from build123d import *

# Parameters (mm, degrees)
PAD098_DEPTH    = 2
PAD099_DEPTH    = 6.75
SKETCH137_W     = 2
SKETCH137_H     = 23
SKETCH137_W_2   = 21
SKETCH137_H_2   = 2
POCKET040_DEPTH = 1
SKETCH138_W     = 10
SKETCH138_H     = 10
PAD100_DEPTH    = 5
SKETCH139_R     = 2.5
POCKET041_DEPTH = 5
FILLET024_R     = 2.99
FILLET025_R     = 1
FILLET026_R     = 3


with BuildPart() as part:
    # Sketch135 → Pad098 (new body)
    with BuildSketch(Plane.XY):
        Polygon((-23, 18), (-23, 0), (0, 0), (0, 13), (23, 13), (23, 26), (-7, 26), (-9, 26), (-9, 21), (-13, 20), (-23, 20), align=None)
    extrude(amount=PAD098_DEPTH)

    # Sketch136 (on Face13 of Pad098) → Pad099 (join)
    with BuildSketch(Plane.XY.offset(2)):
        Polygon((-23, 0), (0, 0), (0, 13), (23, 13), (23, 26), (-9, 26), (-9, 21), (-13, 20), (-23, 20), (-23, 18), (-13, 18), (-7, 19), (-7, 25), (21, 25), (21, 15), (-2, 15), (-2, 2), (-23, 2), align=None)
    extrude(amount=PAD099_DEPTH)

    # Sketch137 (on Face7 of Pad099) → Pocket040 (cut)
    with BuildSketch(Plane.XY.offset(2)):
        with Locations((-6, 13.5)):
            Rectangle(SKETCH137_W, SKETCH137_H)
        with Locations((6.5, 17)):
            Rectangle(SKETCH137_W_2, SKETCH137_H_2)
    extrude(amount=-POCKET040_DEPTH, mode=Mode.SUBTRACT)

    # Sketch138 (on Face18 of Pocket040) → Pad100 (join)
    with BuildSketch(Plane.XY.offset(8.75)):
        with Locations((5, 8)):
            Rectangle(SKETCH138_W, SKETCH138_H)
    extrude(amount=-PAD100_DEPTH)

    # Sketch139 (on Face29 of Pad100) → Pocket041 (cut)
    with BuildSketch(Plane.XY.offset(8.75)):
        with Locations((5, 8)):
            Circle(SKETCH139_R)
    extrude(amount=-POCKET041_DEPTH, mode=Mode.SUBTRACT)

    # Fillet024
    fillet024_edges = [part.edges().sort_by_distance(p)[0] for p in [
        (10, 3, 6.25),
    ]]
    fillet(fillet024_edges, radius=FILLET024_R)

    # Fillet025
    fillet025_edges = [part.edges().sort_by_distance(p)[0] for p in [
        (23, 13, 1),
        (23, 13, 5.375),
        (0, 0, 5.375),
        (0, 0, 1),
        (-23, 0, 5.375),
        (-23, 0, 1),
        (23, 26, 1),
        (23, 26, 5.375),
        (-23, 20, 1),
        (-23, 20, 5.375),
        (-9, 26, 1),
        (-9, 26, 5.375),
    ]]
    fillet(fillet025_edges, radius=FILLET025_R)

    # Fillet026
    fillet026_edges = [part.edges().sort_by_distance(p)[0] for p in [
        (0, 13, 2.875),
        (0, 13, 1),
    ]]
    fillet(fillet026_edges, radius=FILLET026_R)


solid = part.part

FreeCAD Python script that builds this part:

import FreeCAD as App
import Part
import Sketcher

V = App.Vector
Q = App.Units.Quantity


def edges_at(feature, points):
    """Names of the edges that pass closest to the given points."""
    edges = feature.Shape.Edges
    near = lambda p: min(range(len(edges)), key=lambda i: edges[i].distToShape(Part.Vertex(*p))[0])
    return sorted({f"Edge{near(p) + 1}" for p in points})

doc = App.newDocument("Part")
body = doc.addObject("PartDesign::Body", "Body")

# Sketch on XY plane
sketch1 = doc.addObject("Sketcher::SketchObject", "Sketch")
body.addObject(sketch1)
sketch1.AttachmentSupport = (doc.XY_Plane, [""])
sketch1.MapMode = "FlatFace"
sketch1.addGeometry(Part.LineSegment(V(-23, 0, 0), V(0, 0, 0)), False)
sketch1.addGeometry(Part.LineSegment(V(0, 0, 0), V(0, 13, 0)), False)
sketch1.addGeometry(Part.LineSegment(V(0, 13, 0), V(23, 13, 0)), False)
sketch1.addGeometry(Part.LineSegment(V(23, 13, 0), V(23, 26, 0)), False)
sketch1.addGeometry(Part.LineSegment(V(23, 26, 0), V(-9, 26, 0)), False)
sketch1.addGeometry(Part.LineSegment(V(-9, 26, 0), V(-9, 21, 0)), False)
sketch1.addGeometry(Part.LineSegment(V(-9, 21, 0), V(-13, 20, 0)), False)
sketch1.addGeometry(Part.LineSegment(V(-13, 20, 0), V(-23, 20, 0)), False)
sketch1.addGeometry(Part.LineSegment(V(-23, 20, 0), V(-23, 0, 0)), False)
sketch1.addConstraint(Sketcher.Constraint("Coincident", 0, 2, 1, 1))
sketch1.addConstraint(Sketcher.Constraint("Coincident", 1, 2, 2, 1))
sketch1.addConstraint(Sketcher.Constraint("Coincident", 2, 2, 3, 1))
sketch1.addConstraint(Sketcher.Constraint("Coincident", 3, 2, 4, 1))
sketch1.addConstraint(Sketcher.Constraint("Coincident", 4, 2, 5, 1))
sketch1.addConstraint(Sketcher.Constraint("Coincident", 5, 2, 6, 1))
sketch1.addConstraint(Sketcher.Constraint("Coincident", 6, 2, 7, 1))
sketch1.addConstraint(Sketcher.Constraint("Coincident", 7, 2, 8, 1))
sketch1.addConstraint(Sketcher.Constraint("Coincident", 8, 2, 0, 1))
sketch1.addConstraint(Sketcher.Constraint("Horizontal", 0))
sketch1.addConstraint(Sketcher.Constraint("Vertical", 1))
sketch1.addConstraint(Sketcher.Constraint("Horizontal", 2))
sketch1.addConstraint(Sketcher.Constraint("Vertical", 3))
sketch1.addConstraint(Sketcher.Constraint("Horizontal", 4))
sketch1.addConstraint(Sketcher.Constraint("Vertical", 5))
sketch1.addConstraint(Sketcher.Constraint("Horizontal", 7))
sketch1.addConstraint(Sketcher.Constraint("Vertical", 8))
sketch1.addConstraint(Sketcher.Constraint("Coincident", 0, 2, -1, 1))
sketch1.addConstraint(Sketcher.Constraint("Equal", 0, 2))
sketch1.addConstraint(Sketcher.Constraint("Equal", 1, 3))
sketch1.addConstraint(Sketcher.Constraint("DistanceX", 0, 1, 0, 2, Q("23 mm")))
sketch1.addConstraint(Sketcher.Constraint("DistanceX", 4, 2, 4, 1, Q("32 mm")))
sketch1.addConstraint(Sketcher.Constraint("DistanceX", 7, 2, 7, 1, Q("10 mm")))
sketch1.addConstraint(Sketcher.Constraint("DistanceY", 1, 1, 1, 2, Q("13 mm")))
sketch1.addConstraint(Sketcher.Constraint("DistanceY", 5, 2, 5, 1, Q("5 mm")))
sketch1.addConstraint(Sketcher.Constraint("DistanceY", 8, 2, 8, 1, Q("20 mm")))
pad1 = doc.addObject("PartDesign::Pad", "Pad")
body.addObject(pad1)
pad1.Profile = sketch1
pad1.Length = 2

# Sketch on XY plane
sketch2 = doc.addObject("Sketcher::SketchObject", "Sketch001")
body.addObject(sketch2)
sketch2.AttachmentSupport = (doc.XY_Plane, [""])
sketch2.MapMode = "FlatFace"
sketch2.AttachmentOffset = App.Placement(V(0, 0, 2), App.Rotation())
sketch2.addGeometry(Part.LineSegment(V(-23, 0, 0), V(0, 0, 0)), False)
sketch2.addGeometry(Part.LineSegment(V(0, 0, 0), V(0, 13, 0)), False)
sketch2.addGeometry(Part.LineSegment(V(0, 13, 0), V(23, 13, 0)), False)
sketch2.addGeometry(Part.LineSegment(V(23, 13, 0), V(23, 26, 0)), False)
sketch2.addGeometry(Part.LineSegment(V(23, 26, 0), V(-9, 26, 0)), False)
sketch2.addGeometry(Part.LineSegment(V(-9, 26, 0), V(-9, 21, 0)), False)
sketch2.addGeometry(Part.LineSegment(V(-9, 21, 0), V(-13, 20, 0)), False)
sketch2.addGeometry(Part.LineSegment(V(-13, 20, 0), V(-23, 20, 0)), False)
sketch2.addGeometry(Part.LineSegment(V(-23, 20, 0), V(-23, 18, 0)), False)
sketch2.addGeometry(Part.LineSegment(V(-23, 18, 0), V(-13, 18, 0)), False)
sketch2.addGeometry(Part.LineSegment(V(-13, 18, 0), V(-7, 19, 0)), False)
sketch2.addGeometry(Part.LineSegment(V(-7, 19, 0), V(-7, 25, 0)), False)
sketch2.addGeometry(Part.LineSegment(V(-7, 25, 0), V(21, 25, 0)), False)
sketch2.addGeometry(Part.LineSegment(V(21, 25, 0), V(21, 15, 0)), False)
sketch2.addGeometry(Part.LineSegment(V(21, 15, 0), V(-2, 15, 0)), False)
sketch2.addGeometry(Part.LineSegment(V(-2, 15, 0), V(-2, 2, 0)), False)
sketch2.addGeometry(Part.LineSegment(V(-2, 2, 0), V(-23, 2, 0)), False)
sketch2.addGeometry(Part.LineSegment(V(-23, 2, 0), V(-23, 0, 0)), False)
sketch2.addConstraint(Sketcher.Constraint("Coincident", 0, 2, 1, 1))
sketch2.addConstraint(Sketcher.Constraint("Coincident", 1, 2, 2, 1))
sketch2.addConstraint(Sketcher.Constraint("Coincident", 2, 2, 3, 1))
sketch2.addConstraint(Sketcher.Constraint("Coincident", 3, 2, 4, 1))
sketch2.addConstraint(Sketcher.Constraint("Coincident", 4, 2, 5, 1))
sketch2.addConstraint(Sketcher.Constraint("Coincident", 5, 2, 6, 1))
sketch2.addConstraint(Sketcher.Constraint("Coincident", 6, 2, 7, 1))
sketch2.addConstraint(Sketcher.Constraint("Coincident", 7, 2, 8, 1))
sketch2.addConstraint(Sketcher.Constraint("Coincident", 8, 2, 9, 1))
sketch2.addConstraint(Sketcher.Constraint("Coincident", 9, 2, 10, 1))
sketch2.addConstraint(Sketcher.Constraint("Coincident", 10, 2, 11, 1))
sketch2.addConstraint(Sketcher.Constraint("Coincident", 11, 2, 12, 1))
sketch2.addConstraint(Sketcher.Constraint("Coincident", 12, 2, 13, 1))
sketch2.addConstraint(Sketcher.Constraint("Coincident", 13, 2, 14, 1))
sketch2.addConstraint(Sketcher.Constraint("Coincident", 14, 2, 15, 1))
sketch2.addConstraint(Sketcher.Constraint("Coincident", 15, 2, 16, 1))
sketch2.addConstraint(Sketcher.Constraint("Coincident", 16, 2, 17, 1))
sketch2.addConstraint(Sketcher.Constraint("Coincident", 17, 2, 0, 1))
sketch2.addConstraint(Sketcher.Constraint("Horizontal", 0))
sketch2.addConstraint(Sketcher.Constraint("Vertical", 1))
sketch2.addConstraint(Sketcher.Constraint("Horizontal", 2))
sketch2.addConstraint(Sketcher.Constraint("Vertical", 3))
sketch2.addConstraint(Sketcher.Constraint("Horizontal", 4))
sketch2.addConstraint(Sketcher.Constraint("Vertical", 5))
sketch2.addConstraint(Sketcher.Constraint("Horizontal", 7))
sketch2.addConstraint(Sketcher.Constraint("Vertical", 8))
sketch2.addConstraint(Sketcher.Constraint("Horizontal", 9))
sketch2.addConstraint(Sketcher.Constraint("Vertical", 11))
sketch2.addConstraint(Sketcher.Constraint("Horizontal", 12))
sketch2.addConstraint(Sketcher.Constraint("Vertical", 13))
sketch2.addConstraint(Sketcher.Constraint("Horizontal", 14))
sketch2.addConstraint(Sketcher.Constraint("Vertical", 15))
sketch2.addConstraint(Sketcher.Constraint("Horizontal", 16))
sketch2.addConstraint(Sketcher.Constraint("Vertical", 17))
sketch2.addConstraint(Sketcher.Constraint("Coincident", 0, 2, -1, 1))
sketch2.addConstraint(Sketcher.Constraint("Vertical", 6, 2, 9, 2))
sketch2.addConstraint(Sketcher.Constraint("Vertical", 8, 2, 16, 2))
sketch2.addConstraint(Sketcher.Constraint("Equal", 0, 2))
sketch2.addConstraint(Sketcher.Constraint("Equal", 2, 14))
sketch2.addConstraint(Sketcher.Constraint("Equal", 1, 3))
sketch2.addConstraint(Sketcher.Constraint("Equal", 9, 13))
sketch2.addConstraint(Sketcher.Constraint("Equal", 3, 15))
sketch2.addConstraint(Sketcher.Constraint("Equal", 8, 17))
sketch2.addConstraint(Sketcher.Constraint("DistanceX", 0, 1, 0, 2, Q("23 mm")))
sketch2.addConstraint(Sketcher.Constraint("DistanceX", 4, 2, 4, 1, Q("32 mm")))
sketch2.addConstraint(Sketcher.Constraint("DistanceX", 7, 2, 7, 1, Q("10 mm")))
sketch2.addConstraint(Sketcher.Constraint("DistanceX", 12, 1, 12, 2, Q("28 mm")))
sketch2.addConstraint(Sketcher.Constraint("DistanceX", 16, 2, 16, 1, Q("21 mm")))
sketch2.addConstraint(Sketcher.Constraint("DistanceY", 1, 1, 1, 2, Q("13 mm")))
sketch2.addConstraint(Sketcher.Constraint("DistanceY", 5, 2, 5, 1, Q("5 mm")))
sketch2.addConstraint(Sketcher.Constraint("DistanceY", 8, 2, 8, 1, Q("2 mm")))
sketch2.addConstraint(Sketcher.Constraint("DistanceY", 11, 1, 11, 2, Q("6 mm")))
sketch2.addConstraint(Sketcher.Constraint("DistanceY", -1, 1, 6, 2, Q("20 mm")))
pad2 = doc.addObject("PartDesign::Pad", "Pad001")
body.addObject(pad2)
pad2.Profile = sketch2
pad2.Length = 6.75

# Sketch on XY plane
sketch3 = doc.addObject("Sketcher::SketchObject", "Sketch002")
body.addObject(sketch3)
sketch3.AttachmentSupport = (doc.XY_Plane, [""])
sketch3.MapMode = "FlatFace"
sketch3.AttachmentOffset = App.Placement(V(0, 0, 2), App.Rotation())
sketch3.addGeometry(Part.LineSegment(V(-7, 25, 0), V(-7, 2, 0)), False)
sketch3.addGeometry(Part.LineSegment(V(-7, 2, 0), V(-5, 2, 0)), False)
sketch3.addGeometry(Part.LineSegment(V(-5, 2, 0), V(-5, 25, 0)), False)
sketch3.addGeometry(Part.LineSegment(V(-5, 25, 0), V(-7, 25, 0)), False)
sketch3.addGeometry(Part.LineSegment(V(-4, 18, 0), V(-4, 16, 0)), False)
sketch3.addGeometry(Part.LineSegment(V(-4, 16, 0), V(17, 16, 0)), False)
sketch3.addGeometry(Part.LineSegment(V(17, 16, 0), V(17, 18, 0)), False)
sketch3.addGeometry(Part.LineSegment(V(17, 18, 0), V(-4, 18, 0)), False)
sketch3.addConstraint(Sketcher.Constraint("Coincident", 0, 2, 1, 1))
sketch3.addConstraint(Sketcher.Constraint("Coincident", 1, 2, 2, 1))
sketch3.addConstraint(Sketcher.Constraint("Coincident", 2, 2, 3, 1))
sketch3.addConstraint(Sketcher.Constraint("Coincident", 3, 2, 0, 1))
sketch3.addConstraint(Sketcher.Constraint("Coincident", 4, 2, 5, 1))
sketch3.addConstraint(Sketcher.Constraint("Coincident", 5, 2, 6, 1))
sketch3.addConstraint(Sketcher.Constraint("Coincident", 6, 2, 7, 1))
sketch3.addConstraint(Sketcher.Constraint("Coincident", 7, 2, 4, 1))
sketch3.addConstraint(Sketcher.Constraint("Vertical", 0))
sketch3.addConstraint(Sketcher.Constraint("Horizontal", 1))
sketch3.addConstraint(Sketcher.Constraint("Vertical", 2))
sketch3.addConstraint(Sketcher.Constraint("Horizontal", 3))
sketch3.addConstraint(Sketcher.Constraint("Vertical", 4))
sketch3.addConstraint(Sketcher.Constraint("Horizontal", 5))
sketch3.addConstraint(Sketcher.Constraint("Vertical", 6))
sketch3.addConstraint(Sketcher.Constraint("Horizontal", 7))
sketch3.addConstraint(Sketcher.Constraint("Equal", 3, 4))
sketch3.addConstraint(Sketcher.Constraint("DistanceX", 1, 1, 1, 2, Q("2 mm")))
sketch3.addConstraint(Sketcher.Constraint("DistanceX", 5, 1, 5, 2, Q("21 mm")))
sketch3.addConstraint(Sketcher.Constraint("DistanceY", 0, 2, 0, 1, Q("23 mm")))
sketch3.addConstraint(Sketcher.Constraint("DistanceX", 0, 2, -1, 1, Q("7 mm")))
sketch3.addConstraint(Sketcher.Constraint("DistanceY", -1, 1, 0, 2, Q("2 mm")))
sketch3.addConstraint(Sketcher.Constraint("DistanceX", 4, 2, -1, 1, Q("4 mm")))
sketch3.addConstraint(Sketcher.Constraint("DistanceY", -1, 1, 4, 2, Q("16 mm")))
pocket1 = doc.addObject("PartDesign::Pocket", "Pocket")
body.addObject(pocket1)
pocket1.Profile = sketch3
pocket1.Length = 1

# Sketch on XY plane
sketch4 = doc.addObject("Sketcher::SketchObject", "Sketch003")
body.addObject(sketch4)
sketch4.AttachmentSupport = (doc.XY_Plane, [""])
sketch4.MapMode = "FlatFace"
sketch4.AttachmentOffset = App.Placement(V(0, 0, 8.75), App.Rotation())
sketch4.addGeometry(Part.LineSegment(V(0, 13, 0), V(0, 3, 0)), False)
sketch4.addGeometry(Part.LineSegment(V(0, 3, 0), V(10, 3, 0)), False)
sketch4.addGeometry(Part.LineSegment(V(10, 3, 0), V(10, 13, 0)), False)
sketch4.addGeometry(Part.LineSegment(V(10, 13, 0), V(0, 13, 0)), False)
sketch4.addConstraint(Sketcher.Constraint("Coincident", 0, 2, 1, 1))
sketch4.addConstraint(Sketcher.Constraint("Coincident", 1, 2, 2, 1))
sketch4.addConstraint(Sketcher.Constraint("Coincident", 2, 2, 3, 1))
sketch4.addConstraint(Sketcher.Constraint("Coincident", 3, 2, 0, 1))
sketch4.addConstraint(Sketcher.Constraint("Vertical", 0))
sketch4.addConstraint(Sketcher.Constraint("Horizontal", 1))
sketch4.addConstraint(Sketcher.Constraint("Vertical", 2))
sketch4.addConstraint(Sketcher.Constraint("Horizontal", 3))
sketch4.addConstraint(Sketcher.Constraint("PointOnObject", 0, 2, -2))
sketch4.addConstraint(Sketcher.Constraint("Equal", 3, 0))
sketch4.addConstraint(Sketcher.Constraint("DistanceX", 1, 1, 1, 2, Q("10 mm")))
sketch4.addConstraint(Sketcher.Constraint("DistanceY", -1, 1, 0, 2, Q("3 mm")))
pad3 = doc.addObject("PartDesign::Pad", "Pad002")
body.addObject(pad3)
pad3.Profile = sketch4
pad3.Length = 5
pad3.Reversed = True

# Sketch on XY plane
sketch5 = doc.addObject("Sketcher::SketchObject", "Sketch004")
body.addObject(sketch5)
sketch5.AttachmentSupport = (doc.XY_Plane, [""])
sketch5.MapMode = "FlatFace"
sketch5.AttachmentOffset = App.Placement(V(0, 0, 8.75), App.Rotation())
sketch5.addGeometry(Part.Circle(V(5, 8, 0), V(0, 0, 1), 2.5), False)
sketch5.addConstraint(Sketcher.Constraint("Diameter", 0, Q("5 mm")))
sketch5.addConstraint(Sketcher.Constraint("DistanceX", -1, 1, 0, 3, Q("5 mm")))
sketch5.addConstraint(Sketcher.Constraint("DistanceY", -1, 1, 0, 3, Q("8 mm")))
pocket2 = doc.addObject("PartDesign::Pocket", "Pocket001")
body.addObject(pocket2)
pocket2.Profile = sketch5
pocket2.Length = 5
doc.recompute()

fillet = doc.addObject("PartDesign::Fillet", "Fillet")
body.addObject(fillet)
fillet.Base = (pocket2, edges_at(pocket2, [(10, 3, 6.25)]))
fillet.Radius = 2.99
doc.recompute()

fillet2 = doc.addObject("PartDesign::Fillet", "Fillet001")
body.addObject(fillet2)
fillet2.Base = (fillet, edges_at(fillet, [
    (23, 13, 4.375),
    (23, 13, 4.375),
    (0, 0, 4.375),
    (0, 0, 4.375),
    (-23, 0, 4.375),
    (-23, 0, 4.375),
    (23, 26, 4.375),
    (23, 26, 4.375),
    (-23, 20, 4.375),
    (-23, 20, 4.375),
    (-9, 26, 4.375),
    (-9, 26, 4.375),
]))
fillet2.Radius = 1
doc.recompute()

fillet3 = doc.addObject("PartDesign::Fillet", "Fillet002")
body.addObject(fillet3)
fillet3.Base = (fillet2, edges_at(fillet2, [(0, 13, 1.875), (0, 13, 1.875)]))
fillet3.Radius = 3

doc.recompute()
